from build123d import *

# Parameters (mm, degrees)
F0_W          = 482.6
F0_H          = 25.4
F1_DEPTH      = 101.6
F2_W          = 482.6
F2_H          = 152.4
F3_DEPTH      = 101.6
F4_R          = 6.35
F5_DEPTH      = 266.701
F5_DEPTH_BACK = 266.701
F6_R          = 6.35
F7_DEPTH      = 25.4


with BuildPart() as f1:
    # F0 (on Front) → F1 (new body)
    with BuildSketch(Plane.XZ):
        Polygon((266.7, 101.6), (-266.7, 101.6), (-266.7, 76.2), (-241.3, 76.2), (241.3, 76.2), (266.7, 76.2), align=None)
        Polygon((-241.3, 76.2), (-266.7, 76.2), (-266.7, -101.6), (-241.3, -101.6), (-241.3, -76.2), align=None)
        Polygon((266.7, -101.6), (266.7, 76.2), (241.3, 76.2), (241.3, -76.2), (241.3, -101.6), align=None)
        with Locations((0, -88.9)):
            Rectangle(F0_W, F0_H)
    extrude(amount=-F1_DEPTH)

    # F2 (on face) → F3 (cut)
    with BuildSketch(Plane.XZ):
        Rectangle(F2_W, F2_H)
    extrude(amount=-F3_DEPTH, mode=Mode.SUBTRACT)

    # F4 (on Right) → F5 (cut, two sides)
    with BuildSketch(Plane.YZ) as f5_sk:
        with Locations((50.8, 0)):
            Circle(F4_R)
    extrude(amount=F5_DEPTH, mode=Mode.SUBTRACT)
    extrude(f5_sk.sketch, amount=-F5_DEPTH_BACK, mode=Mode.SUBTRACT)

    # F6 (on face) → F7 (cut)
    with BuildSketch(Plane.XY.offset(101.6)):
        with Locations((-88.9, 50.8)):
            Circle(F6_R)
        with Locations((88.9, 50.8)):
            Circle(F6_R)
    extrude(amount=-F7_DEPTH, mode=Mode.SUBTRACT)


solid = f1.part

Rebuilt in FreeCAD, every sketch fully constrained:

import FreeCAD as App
import Part
import Sketcher

V = App.Vector
Q = App.Units.Quantity

doc = App.newDocument("Part")
body = doc.addObject("PartDesign::Body", "Body")

# Sketch on XZ plane
sketch1 = doc.addObject("Sketcher::SketchObject", "Sketch")
body.addObject(sketch1)
sketch1.AttachmentSupport = (doc.XZ_Plane, [""])
sketch1.MapMode = "FlatFace"
sketch1.addGeometry(Part.LineSegment(V(267, 102, 0), V(-267, 102, 0)), False)
sketch1.addGeometry(Part.LineSegment(V(-267, 102, 0), V(-267, -102, 0)), False)
sketch1.addGeometry(Part.LineSegment(V(-267, -102, 0), V(267, -102, 0)), False)
sketch1.addGeometry(Part.LineSegment(V(267, -102, 0), V(267, 102, 0)), False)
sketch1.addGeometry(Part.LineSegment(V(-241, 76, 0), V(241, 76, 0)), False)
sketch1.addGeometry(Part.LineSegment(V(241, 76, 0), V(241, -76, 0)), False)
sketch1.addGeometry(Part.LineSegment(V(241, -76, 0), V(-241, -76, 0)), False)
sketch1.addGeometry(Part.LineSegment(V(-241, -76, 0), V(-241, 76, 0)), False)
sketch1.addConstraint(Sketcher.Constraint("Coincident", 0, 2, 1, 1))
sketch1.addConstraint(Sketcher.Constraint("Coincident", 1, 2, 2, 1))
sketch1.addConstraint(Sketcher.Constraint("Coincident", 2, 2, 3, 1))
sketch1.addConstraint(Sketcher.Constraint("Coincident", 3, 2, 0, 1))
sketch1.addConstraint(Sketcher.Constraint("Coincident", 4, 2, 5, 1))
sketch1.addConstraint(Sketcher.Constraint("Coincident", 5, 2, 6, 1))
sketch1.addConstraint(Sketcher.Constraint("Coincident", 6, 2, 7, 1))
sketch1.addConstraint(Sketcher.Constraint("Coincident", 7, 2, 4, 1))
sketch1.addConstraint(Sketcher.Constraint("Horizontal", 0))
sketch1.addConstraint(Sketcher.Constraint("Vertical", 1))
sketch1.addConstraint(Sketcher.Constraint("Horizontal", 2))
sketch1.addConstraint(Sketcher.Constraint("Vertical", 3))
sketch1.addConstraint(Sketcher.Constraint("Horizontal", 4))
sketch1.addConstraint(Sketcher.Constraint("Vertical", 5))
sketch1.addConstraint(Sketcher.Constraint("Horizontal", 6))
sketch1.addConstraint(Sketcher.Constraint("Vertical", 7))
sketch1.addConstraint(Sketcher.Constraint("Symmetric", 0, 2, 2, 2, -1, 1))
sketch1.addConstraint(Sketcher.Constraint("Symmetric", 4, 2, 6, 2, -1, 1))
sketch1.addConstraint(Sketcher.Constraint("DistanceX", 0, 2, 0, 1, Q("21 in")))
sketch1.addConstraint(Sketcher.Constraint("DistanceX", 4, 1, 4, 2, Q("19 in")))
sketch1.addConstraint(Sketcher.Constraint("DistanceY", 1, 2, 1, 1, Q("8 in")))
sketch1.addConstraint(Sketcher.Constraint("DistanceY", 5, 2, 5, 1, Q("6 in")))
pad1 = doc.addObject("PartDesign::Pad", "Pad")
body.addObject(pad1)
pad1.Profile = sketch1
pad1.Length = Q("4 in")
pad1.Reversed = True

# Sketch on XZ plane
sketch2 = doc.addObject("Sketcher::SketchObject", "Sketch001")
body.addObject(sketch2)
sketch2.AttachmentSupport = (doc.XZ_Plane, [""])
sketch2.MapMode = "FlatFace"
sketch2.addGeometry(Part.LineSegment(V(-241, 76, 0), V(-241, -76, 0)), False)
sketch2.addGeometry(Part.LineSegment(V(-241, -76, 0), V(241, -76, 0)), False)
sketch2.addGeometry(Part.LineSegment(V(241, -76, 0), V(241, 76, 0)), False)
sketch2.addGeometry(Part.LineSegment(V(241, 76, 0), V(-241, 76, 0)), False)
sketch2.addConstraint(Sketcher.Constraint("Coincident", 0, 2, 1, 1))
sketch2.addConstraint(Sketcher.Constraint("Coincident", 1, 2, 2, 1))
sketch2.addConstraint(Sketcher.Constraint("Coincident", 2, 2, 3, 1))
sketch2.addConstraint(Sketcher.Constraint("Coincident", 3, 2, 0, 1))
sketch2.addConstraint(Sketcher.Constraint("Vertical", 0))
sketch2.addConstraint(Sketcher.Constraint("Horizontal", 1))
sketch2.addConstraint(Sketcher.Constraint("Vertical", 2))
sketch2.addConstraint(Sketcher.Constraint("Horizontal", 3))
sketch2.addConstraint(Sketcher.Constraint("Symmetric", 0, 2, 2, 2, -1, 1))
sketch2.addConstraint(Sketcher.Constraint("DistanceX", 1, 1, 1, 2, Q("19 in")))
sketch2.addConstraint(Sketcher.Constraint("DistanceY", 0, 2, 0, 1, Q("6 in")))
pocket1 = doc.addObject("PartDesign::Pocket", "Pocket")
body.addObject(pocket1)
pocket1.Profile = sketch2
pocket1.Length = Q("4 in")

# Sketch on YZ plane
sketch3 = doc.addObject("Sketcher::SketchObject", "Sketch002")
body.addObject(sketch3)
sketch3.AttachmentSupport = (doc.YZ_Plane, [""])
sketch3.MapMode = "FlatFace"
sketch3.addGeometry(Part.Circle(V(51, 0, 0), V(0, 0, 1), 6), False)
sketch3.addConstraint(Sketcher.Constraint("PointOnObject", 0, 3, -1))
sketch3.addConstraint(Sketcher.Constraint("Diameter", 0, Q("0.5 in")))
sketch3.addConstraint(Sketcher.Constraint("DistanceX", -1, 1, 0, 3, Q("2 in")))
pocket2 = doc.addObject("PartDesign::Pocket", "Pocket001")
body.addObject(pocket2)
pocket2.Profile = sketch3
pocket2.Type = "ThroughAll"
pocket2.Midplane = True

# Sketch on XY plane
sketch4 = doc.addObject("Sketcher::SketchObject", "Sketch003")
body.addObject(sketch4)
sketch4.AttachmentSupport = (doc.XY_Plane, [""])
sketch4.MapMode = "FlatFace"
sketch4.AttachmentOffset = App.Placement(V(0, 0, 4 * 25.4), App.Rotation())
sketch4.addGeometry(Part.Circle(V(-89, 51, 0), V(0, 0, 1), 6), False)
sketch4.addGeometry(Part.Circle(V(89, 51, 0), V(0, 0, 1), 6), False)
sketch4.addConstraint(Sketcher.Constraint("Equal", 0, 1))
sketch4.addConstraint(Sketcher.Constraint("Symmetric", 0, 3, 1, 3, -2))
sketch4.addConstraint(Sketcher.Constraint("Diameter", 0, Q("0.5 in")))
sketch4.addConstraint(Sketcher.Constraint("DistanceY", -1, 1, 0, 3, Q("2 in")))
sketch4.addConstraint(Sketcher.Constraint("DistanceX", 0, 3, 1, 3, Q("7 in")))
pocket3 = doc.addObject("PartDesign::Pocket", "Pocket002")
body.addObject(pocket3)
pocket3.Profile = sketch4
pocket3.Length = Q("1 in")

doc.recompute()
